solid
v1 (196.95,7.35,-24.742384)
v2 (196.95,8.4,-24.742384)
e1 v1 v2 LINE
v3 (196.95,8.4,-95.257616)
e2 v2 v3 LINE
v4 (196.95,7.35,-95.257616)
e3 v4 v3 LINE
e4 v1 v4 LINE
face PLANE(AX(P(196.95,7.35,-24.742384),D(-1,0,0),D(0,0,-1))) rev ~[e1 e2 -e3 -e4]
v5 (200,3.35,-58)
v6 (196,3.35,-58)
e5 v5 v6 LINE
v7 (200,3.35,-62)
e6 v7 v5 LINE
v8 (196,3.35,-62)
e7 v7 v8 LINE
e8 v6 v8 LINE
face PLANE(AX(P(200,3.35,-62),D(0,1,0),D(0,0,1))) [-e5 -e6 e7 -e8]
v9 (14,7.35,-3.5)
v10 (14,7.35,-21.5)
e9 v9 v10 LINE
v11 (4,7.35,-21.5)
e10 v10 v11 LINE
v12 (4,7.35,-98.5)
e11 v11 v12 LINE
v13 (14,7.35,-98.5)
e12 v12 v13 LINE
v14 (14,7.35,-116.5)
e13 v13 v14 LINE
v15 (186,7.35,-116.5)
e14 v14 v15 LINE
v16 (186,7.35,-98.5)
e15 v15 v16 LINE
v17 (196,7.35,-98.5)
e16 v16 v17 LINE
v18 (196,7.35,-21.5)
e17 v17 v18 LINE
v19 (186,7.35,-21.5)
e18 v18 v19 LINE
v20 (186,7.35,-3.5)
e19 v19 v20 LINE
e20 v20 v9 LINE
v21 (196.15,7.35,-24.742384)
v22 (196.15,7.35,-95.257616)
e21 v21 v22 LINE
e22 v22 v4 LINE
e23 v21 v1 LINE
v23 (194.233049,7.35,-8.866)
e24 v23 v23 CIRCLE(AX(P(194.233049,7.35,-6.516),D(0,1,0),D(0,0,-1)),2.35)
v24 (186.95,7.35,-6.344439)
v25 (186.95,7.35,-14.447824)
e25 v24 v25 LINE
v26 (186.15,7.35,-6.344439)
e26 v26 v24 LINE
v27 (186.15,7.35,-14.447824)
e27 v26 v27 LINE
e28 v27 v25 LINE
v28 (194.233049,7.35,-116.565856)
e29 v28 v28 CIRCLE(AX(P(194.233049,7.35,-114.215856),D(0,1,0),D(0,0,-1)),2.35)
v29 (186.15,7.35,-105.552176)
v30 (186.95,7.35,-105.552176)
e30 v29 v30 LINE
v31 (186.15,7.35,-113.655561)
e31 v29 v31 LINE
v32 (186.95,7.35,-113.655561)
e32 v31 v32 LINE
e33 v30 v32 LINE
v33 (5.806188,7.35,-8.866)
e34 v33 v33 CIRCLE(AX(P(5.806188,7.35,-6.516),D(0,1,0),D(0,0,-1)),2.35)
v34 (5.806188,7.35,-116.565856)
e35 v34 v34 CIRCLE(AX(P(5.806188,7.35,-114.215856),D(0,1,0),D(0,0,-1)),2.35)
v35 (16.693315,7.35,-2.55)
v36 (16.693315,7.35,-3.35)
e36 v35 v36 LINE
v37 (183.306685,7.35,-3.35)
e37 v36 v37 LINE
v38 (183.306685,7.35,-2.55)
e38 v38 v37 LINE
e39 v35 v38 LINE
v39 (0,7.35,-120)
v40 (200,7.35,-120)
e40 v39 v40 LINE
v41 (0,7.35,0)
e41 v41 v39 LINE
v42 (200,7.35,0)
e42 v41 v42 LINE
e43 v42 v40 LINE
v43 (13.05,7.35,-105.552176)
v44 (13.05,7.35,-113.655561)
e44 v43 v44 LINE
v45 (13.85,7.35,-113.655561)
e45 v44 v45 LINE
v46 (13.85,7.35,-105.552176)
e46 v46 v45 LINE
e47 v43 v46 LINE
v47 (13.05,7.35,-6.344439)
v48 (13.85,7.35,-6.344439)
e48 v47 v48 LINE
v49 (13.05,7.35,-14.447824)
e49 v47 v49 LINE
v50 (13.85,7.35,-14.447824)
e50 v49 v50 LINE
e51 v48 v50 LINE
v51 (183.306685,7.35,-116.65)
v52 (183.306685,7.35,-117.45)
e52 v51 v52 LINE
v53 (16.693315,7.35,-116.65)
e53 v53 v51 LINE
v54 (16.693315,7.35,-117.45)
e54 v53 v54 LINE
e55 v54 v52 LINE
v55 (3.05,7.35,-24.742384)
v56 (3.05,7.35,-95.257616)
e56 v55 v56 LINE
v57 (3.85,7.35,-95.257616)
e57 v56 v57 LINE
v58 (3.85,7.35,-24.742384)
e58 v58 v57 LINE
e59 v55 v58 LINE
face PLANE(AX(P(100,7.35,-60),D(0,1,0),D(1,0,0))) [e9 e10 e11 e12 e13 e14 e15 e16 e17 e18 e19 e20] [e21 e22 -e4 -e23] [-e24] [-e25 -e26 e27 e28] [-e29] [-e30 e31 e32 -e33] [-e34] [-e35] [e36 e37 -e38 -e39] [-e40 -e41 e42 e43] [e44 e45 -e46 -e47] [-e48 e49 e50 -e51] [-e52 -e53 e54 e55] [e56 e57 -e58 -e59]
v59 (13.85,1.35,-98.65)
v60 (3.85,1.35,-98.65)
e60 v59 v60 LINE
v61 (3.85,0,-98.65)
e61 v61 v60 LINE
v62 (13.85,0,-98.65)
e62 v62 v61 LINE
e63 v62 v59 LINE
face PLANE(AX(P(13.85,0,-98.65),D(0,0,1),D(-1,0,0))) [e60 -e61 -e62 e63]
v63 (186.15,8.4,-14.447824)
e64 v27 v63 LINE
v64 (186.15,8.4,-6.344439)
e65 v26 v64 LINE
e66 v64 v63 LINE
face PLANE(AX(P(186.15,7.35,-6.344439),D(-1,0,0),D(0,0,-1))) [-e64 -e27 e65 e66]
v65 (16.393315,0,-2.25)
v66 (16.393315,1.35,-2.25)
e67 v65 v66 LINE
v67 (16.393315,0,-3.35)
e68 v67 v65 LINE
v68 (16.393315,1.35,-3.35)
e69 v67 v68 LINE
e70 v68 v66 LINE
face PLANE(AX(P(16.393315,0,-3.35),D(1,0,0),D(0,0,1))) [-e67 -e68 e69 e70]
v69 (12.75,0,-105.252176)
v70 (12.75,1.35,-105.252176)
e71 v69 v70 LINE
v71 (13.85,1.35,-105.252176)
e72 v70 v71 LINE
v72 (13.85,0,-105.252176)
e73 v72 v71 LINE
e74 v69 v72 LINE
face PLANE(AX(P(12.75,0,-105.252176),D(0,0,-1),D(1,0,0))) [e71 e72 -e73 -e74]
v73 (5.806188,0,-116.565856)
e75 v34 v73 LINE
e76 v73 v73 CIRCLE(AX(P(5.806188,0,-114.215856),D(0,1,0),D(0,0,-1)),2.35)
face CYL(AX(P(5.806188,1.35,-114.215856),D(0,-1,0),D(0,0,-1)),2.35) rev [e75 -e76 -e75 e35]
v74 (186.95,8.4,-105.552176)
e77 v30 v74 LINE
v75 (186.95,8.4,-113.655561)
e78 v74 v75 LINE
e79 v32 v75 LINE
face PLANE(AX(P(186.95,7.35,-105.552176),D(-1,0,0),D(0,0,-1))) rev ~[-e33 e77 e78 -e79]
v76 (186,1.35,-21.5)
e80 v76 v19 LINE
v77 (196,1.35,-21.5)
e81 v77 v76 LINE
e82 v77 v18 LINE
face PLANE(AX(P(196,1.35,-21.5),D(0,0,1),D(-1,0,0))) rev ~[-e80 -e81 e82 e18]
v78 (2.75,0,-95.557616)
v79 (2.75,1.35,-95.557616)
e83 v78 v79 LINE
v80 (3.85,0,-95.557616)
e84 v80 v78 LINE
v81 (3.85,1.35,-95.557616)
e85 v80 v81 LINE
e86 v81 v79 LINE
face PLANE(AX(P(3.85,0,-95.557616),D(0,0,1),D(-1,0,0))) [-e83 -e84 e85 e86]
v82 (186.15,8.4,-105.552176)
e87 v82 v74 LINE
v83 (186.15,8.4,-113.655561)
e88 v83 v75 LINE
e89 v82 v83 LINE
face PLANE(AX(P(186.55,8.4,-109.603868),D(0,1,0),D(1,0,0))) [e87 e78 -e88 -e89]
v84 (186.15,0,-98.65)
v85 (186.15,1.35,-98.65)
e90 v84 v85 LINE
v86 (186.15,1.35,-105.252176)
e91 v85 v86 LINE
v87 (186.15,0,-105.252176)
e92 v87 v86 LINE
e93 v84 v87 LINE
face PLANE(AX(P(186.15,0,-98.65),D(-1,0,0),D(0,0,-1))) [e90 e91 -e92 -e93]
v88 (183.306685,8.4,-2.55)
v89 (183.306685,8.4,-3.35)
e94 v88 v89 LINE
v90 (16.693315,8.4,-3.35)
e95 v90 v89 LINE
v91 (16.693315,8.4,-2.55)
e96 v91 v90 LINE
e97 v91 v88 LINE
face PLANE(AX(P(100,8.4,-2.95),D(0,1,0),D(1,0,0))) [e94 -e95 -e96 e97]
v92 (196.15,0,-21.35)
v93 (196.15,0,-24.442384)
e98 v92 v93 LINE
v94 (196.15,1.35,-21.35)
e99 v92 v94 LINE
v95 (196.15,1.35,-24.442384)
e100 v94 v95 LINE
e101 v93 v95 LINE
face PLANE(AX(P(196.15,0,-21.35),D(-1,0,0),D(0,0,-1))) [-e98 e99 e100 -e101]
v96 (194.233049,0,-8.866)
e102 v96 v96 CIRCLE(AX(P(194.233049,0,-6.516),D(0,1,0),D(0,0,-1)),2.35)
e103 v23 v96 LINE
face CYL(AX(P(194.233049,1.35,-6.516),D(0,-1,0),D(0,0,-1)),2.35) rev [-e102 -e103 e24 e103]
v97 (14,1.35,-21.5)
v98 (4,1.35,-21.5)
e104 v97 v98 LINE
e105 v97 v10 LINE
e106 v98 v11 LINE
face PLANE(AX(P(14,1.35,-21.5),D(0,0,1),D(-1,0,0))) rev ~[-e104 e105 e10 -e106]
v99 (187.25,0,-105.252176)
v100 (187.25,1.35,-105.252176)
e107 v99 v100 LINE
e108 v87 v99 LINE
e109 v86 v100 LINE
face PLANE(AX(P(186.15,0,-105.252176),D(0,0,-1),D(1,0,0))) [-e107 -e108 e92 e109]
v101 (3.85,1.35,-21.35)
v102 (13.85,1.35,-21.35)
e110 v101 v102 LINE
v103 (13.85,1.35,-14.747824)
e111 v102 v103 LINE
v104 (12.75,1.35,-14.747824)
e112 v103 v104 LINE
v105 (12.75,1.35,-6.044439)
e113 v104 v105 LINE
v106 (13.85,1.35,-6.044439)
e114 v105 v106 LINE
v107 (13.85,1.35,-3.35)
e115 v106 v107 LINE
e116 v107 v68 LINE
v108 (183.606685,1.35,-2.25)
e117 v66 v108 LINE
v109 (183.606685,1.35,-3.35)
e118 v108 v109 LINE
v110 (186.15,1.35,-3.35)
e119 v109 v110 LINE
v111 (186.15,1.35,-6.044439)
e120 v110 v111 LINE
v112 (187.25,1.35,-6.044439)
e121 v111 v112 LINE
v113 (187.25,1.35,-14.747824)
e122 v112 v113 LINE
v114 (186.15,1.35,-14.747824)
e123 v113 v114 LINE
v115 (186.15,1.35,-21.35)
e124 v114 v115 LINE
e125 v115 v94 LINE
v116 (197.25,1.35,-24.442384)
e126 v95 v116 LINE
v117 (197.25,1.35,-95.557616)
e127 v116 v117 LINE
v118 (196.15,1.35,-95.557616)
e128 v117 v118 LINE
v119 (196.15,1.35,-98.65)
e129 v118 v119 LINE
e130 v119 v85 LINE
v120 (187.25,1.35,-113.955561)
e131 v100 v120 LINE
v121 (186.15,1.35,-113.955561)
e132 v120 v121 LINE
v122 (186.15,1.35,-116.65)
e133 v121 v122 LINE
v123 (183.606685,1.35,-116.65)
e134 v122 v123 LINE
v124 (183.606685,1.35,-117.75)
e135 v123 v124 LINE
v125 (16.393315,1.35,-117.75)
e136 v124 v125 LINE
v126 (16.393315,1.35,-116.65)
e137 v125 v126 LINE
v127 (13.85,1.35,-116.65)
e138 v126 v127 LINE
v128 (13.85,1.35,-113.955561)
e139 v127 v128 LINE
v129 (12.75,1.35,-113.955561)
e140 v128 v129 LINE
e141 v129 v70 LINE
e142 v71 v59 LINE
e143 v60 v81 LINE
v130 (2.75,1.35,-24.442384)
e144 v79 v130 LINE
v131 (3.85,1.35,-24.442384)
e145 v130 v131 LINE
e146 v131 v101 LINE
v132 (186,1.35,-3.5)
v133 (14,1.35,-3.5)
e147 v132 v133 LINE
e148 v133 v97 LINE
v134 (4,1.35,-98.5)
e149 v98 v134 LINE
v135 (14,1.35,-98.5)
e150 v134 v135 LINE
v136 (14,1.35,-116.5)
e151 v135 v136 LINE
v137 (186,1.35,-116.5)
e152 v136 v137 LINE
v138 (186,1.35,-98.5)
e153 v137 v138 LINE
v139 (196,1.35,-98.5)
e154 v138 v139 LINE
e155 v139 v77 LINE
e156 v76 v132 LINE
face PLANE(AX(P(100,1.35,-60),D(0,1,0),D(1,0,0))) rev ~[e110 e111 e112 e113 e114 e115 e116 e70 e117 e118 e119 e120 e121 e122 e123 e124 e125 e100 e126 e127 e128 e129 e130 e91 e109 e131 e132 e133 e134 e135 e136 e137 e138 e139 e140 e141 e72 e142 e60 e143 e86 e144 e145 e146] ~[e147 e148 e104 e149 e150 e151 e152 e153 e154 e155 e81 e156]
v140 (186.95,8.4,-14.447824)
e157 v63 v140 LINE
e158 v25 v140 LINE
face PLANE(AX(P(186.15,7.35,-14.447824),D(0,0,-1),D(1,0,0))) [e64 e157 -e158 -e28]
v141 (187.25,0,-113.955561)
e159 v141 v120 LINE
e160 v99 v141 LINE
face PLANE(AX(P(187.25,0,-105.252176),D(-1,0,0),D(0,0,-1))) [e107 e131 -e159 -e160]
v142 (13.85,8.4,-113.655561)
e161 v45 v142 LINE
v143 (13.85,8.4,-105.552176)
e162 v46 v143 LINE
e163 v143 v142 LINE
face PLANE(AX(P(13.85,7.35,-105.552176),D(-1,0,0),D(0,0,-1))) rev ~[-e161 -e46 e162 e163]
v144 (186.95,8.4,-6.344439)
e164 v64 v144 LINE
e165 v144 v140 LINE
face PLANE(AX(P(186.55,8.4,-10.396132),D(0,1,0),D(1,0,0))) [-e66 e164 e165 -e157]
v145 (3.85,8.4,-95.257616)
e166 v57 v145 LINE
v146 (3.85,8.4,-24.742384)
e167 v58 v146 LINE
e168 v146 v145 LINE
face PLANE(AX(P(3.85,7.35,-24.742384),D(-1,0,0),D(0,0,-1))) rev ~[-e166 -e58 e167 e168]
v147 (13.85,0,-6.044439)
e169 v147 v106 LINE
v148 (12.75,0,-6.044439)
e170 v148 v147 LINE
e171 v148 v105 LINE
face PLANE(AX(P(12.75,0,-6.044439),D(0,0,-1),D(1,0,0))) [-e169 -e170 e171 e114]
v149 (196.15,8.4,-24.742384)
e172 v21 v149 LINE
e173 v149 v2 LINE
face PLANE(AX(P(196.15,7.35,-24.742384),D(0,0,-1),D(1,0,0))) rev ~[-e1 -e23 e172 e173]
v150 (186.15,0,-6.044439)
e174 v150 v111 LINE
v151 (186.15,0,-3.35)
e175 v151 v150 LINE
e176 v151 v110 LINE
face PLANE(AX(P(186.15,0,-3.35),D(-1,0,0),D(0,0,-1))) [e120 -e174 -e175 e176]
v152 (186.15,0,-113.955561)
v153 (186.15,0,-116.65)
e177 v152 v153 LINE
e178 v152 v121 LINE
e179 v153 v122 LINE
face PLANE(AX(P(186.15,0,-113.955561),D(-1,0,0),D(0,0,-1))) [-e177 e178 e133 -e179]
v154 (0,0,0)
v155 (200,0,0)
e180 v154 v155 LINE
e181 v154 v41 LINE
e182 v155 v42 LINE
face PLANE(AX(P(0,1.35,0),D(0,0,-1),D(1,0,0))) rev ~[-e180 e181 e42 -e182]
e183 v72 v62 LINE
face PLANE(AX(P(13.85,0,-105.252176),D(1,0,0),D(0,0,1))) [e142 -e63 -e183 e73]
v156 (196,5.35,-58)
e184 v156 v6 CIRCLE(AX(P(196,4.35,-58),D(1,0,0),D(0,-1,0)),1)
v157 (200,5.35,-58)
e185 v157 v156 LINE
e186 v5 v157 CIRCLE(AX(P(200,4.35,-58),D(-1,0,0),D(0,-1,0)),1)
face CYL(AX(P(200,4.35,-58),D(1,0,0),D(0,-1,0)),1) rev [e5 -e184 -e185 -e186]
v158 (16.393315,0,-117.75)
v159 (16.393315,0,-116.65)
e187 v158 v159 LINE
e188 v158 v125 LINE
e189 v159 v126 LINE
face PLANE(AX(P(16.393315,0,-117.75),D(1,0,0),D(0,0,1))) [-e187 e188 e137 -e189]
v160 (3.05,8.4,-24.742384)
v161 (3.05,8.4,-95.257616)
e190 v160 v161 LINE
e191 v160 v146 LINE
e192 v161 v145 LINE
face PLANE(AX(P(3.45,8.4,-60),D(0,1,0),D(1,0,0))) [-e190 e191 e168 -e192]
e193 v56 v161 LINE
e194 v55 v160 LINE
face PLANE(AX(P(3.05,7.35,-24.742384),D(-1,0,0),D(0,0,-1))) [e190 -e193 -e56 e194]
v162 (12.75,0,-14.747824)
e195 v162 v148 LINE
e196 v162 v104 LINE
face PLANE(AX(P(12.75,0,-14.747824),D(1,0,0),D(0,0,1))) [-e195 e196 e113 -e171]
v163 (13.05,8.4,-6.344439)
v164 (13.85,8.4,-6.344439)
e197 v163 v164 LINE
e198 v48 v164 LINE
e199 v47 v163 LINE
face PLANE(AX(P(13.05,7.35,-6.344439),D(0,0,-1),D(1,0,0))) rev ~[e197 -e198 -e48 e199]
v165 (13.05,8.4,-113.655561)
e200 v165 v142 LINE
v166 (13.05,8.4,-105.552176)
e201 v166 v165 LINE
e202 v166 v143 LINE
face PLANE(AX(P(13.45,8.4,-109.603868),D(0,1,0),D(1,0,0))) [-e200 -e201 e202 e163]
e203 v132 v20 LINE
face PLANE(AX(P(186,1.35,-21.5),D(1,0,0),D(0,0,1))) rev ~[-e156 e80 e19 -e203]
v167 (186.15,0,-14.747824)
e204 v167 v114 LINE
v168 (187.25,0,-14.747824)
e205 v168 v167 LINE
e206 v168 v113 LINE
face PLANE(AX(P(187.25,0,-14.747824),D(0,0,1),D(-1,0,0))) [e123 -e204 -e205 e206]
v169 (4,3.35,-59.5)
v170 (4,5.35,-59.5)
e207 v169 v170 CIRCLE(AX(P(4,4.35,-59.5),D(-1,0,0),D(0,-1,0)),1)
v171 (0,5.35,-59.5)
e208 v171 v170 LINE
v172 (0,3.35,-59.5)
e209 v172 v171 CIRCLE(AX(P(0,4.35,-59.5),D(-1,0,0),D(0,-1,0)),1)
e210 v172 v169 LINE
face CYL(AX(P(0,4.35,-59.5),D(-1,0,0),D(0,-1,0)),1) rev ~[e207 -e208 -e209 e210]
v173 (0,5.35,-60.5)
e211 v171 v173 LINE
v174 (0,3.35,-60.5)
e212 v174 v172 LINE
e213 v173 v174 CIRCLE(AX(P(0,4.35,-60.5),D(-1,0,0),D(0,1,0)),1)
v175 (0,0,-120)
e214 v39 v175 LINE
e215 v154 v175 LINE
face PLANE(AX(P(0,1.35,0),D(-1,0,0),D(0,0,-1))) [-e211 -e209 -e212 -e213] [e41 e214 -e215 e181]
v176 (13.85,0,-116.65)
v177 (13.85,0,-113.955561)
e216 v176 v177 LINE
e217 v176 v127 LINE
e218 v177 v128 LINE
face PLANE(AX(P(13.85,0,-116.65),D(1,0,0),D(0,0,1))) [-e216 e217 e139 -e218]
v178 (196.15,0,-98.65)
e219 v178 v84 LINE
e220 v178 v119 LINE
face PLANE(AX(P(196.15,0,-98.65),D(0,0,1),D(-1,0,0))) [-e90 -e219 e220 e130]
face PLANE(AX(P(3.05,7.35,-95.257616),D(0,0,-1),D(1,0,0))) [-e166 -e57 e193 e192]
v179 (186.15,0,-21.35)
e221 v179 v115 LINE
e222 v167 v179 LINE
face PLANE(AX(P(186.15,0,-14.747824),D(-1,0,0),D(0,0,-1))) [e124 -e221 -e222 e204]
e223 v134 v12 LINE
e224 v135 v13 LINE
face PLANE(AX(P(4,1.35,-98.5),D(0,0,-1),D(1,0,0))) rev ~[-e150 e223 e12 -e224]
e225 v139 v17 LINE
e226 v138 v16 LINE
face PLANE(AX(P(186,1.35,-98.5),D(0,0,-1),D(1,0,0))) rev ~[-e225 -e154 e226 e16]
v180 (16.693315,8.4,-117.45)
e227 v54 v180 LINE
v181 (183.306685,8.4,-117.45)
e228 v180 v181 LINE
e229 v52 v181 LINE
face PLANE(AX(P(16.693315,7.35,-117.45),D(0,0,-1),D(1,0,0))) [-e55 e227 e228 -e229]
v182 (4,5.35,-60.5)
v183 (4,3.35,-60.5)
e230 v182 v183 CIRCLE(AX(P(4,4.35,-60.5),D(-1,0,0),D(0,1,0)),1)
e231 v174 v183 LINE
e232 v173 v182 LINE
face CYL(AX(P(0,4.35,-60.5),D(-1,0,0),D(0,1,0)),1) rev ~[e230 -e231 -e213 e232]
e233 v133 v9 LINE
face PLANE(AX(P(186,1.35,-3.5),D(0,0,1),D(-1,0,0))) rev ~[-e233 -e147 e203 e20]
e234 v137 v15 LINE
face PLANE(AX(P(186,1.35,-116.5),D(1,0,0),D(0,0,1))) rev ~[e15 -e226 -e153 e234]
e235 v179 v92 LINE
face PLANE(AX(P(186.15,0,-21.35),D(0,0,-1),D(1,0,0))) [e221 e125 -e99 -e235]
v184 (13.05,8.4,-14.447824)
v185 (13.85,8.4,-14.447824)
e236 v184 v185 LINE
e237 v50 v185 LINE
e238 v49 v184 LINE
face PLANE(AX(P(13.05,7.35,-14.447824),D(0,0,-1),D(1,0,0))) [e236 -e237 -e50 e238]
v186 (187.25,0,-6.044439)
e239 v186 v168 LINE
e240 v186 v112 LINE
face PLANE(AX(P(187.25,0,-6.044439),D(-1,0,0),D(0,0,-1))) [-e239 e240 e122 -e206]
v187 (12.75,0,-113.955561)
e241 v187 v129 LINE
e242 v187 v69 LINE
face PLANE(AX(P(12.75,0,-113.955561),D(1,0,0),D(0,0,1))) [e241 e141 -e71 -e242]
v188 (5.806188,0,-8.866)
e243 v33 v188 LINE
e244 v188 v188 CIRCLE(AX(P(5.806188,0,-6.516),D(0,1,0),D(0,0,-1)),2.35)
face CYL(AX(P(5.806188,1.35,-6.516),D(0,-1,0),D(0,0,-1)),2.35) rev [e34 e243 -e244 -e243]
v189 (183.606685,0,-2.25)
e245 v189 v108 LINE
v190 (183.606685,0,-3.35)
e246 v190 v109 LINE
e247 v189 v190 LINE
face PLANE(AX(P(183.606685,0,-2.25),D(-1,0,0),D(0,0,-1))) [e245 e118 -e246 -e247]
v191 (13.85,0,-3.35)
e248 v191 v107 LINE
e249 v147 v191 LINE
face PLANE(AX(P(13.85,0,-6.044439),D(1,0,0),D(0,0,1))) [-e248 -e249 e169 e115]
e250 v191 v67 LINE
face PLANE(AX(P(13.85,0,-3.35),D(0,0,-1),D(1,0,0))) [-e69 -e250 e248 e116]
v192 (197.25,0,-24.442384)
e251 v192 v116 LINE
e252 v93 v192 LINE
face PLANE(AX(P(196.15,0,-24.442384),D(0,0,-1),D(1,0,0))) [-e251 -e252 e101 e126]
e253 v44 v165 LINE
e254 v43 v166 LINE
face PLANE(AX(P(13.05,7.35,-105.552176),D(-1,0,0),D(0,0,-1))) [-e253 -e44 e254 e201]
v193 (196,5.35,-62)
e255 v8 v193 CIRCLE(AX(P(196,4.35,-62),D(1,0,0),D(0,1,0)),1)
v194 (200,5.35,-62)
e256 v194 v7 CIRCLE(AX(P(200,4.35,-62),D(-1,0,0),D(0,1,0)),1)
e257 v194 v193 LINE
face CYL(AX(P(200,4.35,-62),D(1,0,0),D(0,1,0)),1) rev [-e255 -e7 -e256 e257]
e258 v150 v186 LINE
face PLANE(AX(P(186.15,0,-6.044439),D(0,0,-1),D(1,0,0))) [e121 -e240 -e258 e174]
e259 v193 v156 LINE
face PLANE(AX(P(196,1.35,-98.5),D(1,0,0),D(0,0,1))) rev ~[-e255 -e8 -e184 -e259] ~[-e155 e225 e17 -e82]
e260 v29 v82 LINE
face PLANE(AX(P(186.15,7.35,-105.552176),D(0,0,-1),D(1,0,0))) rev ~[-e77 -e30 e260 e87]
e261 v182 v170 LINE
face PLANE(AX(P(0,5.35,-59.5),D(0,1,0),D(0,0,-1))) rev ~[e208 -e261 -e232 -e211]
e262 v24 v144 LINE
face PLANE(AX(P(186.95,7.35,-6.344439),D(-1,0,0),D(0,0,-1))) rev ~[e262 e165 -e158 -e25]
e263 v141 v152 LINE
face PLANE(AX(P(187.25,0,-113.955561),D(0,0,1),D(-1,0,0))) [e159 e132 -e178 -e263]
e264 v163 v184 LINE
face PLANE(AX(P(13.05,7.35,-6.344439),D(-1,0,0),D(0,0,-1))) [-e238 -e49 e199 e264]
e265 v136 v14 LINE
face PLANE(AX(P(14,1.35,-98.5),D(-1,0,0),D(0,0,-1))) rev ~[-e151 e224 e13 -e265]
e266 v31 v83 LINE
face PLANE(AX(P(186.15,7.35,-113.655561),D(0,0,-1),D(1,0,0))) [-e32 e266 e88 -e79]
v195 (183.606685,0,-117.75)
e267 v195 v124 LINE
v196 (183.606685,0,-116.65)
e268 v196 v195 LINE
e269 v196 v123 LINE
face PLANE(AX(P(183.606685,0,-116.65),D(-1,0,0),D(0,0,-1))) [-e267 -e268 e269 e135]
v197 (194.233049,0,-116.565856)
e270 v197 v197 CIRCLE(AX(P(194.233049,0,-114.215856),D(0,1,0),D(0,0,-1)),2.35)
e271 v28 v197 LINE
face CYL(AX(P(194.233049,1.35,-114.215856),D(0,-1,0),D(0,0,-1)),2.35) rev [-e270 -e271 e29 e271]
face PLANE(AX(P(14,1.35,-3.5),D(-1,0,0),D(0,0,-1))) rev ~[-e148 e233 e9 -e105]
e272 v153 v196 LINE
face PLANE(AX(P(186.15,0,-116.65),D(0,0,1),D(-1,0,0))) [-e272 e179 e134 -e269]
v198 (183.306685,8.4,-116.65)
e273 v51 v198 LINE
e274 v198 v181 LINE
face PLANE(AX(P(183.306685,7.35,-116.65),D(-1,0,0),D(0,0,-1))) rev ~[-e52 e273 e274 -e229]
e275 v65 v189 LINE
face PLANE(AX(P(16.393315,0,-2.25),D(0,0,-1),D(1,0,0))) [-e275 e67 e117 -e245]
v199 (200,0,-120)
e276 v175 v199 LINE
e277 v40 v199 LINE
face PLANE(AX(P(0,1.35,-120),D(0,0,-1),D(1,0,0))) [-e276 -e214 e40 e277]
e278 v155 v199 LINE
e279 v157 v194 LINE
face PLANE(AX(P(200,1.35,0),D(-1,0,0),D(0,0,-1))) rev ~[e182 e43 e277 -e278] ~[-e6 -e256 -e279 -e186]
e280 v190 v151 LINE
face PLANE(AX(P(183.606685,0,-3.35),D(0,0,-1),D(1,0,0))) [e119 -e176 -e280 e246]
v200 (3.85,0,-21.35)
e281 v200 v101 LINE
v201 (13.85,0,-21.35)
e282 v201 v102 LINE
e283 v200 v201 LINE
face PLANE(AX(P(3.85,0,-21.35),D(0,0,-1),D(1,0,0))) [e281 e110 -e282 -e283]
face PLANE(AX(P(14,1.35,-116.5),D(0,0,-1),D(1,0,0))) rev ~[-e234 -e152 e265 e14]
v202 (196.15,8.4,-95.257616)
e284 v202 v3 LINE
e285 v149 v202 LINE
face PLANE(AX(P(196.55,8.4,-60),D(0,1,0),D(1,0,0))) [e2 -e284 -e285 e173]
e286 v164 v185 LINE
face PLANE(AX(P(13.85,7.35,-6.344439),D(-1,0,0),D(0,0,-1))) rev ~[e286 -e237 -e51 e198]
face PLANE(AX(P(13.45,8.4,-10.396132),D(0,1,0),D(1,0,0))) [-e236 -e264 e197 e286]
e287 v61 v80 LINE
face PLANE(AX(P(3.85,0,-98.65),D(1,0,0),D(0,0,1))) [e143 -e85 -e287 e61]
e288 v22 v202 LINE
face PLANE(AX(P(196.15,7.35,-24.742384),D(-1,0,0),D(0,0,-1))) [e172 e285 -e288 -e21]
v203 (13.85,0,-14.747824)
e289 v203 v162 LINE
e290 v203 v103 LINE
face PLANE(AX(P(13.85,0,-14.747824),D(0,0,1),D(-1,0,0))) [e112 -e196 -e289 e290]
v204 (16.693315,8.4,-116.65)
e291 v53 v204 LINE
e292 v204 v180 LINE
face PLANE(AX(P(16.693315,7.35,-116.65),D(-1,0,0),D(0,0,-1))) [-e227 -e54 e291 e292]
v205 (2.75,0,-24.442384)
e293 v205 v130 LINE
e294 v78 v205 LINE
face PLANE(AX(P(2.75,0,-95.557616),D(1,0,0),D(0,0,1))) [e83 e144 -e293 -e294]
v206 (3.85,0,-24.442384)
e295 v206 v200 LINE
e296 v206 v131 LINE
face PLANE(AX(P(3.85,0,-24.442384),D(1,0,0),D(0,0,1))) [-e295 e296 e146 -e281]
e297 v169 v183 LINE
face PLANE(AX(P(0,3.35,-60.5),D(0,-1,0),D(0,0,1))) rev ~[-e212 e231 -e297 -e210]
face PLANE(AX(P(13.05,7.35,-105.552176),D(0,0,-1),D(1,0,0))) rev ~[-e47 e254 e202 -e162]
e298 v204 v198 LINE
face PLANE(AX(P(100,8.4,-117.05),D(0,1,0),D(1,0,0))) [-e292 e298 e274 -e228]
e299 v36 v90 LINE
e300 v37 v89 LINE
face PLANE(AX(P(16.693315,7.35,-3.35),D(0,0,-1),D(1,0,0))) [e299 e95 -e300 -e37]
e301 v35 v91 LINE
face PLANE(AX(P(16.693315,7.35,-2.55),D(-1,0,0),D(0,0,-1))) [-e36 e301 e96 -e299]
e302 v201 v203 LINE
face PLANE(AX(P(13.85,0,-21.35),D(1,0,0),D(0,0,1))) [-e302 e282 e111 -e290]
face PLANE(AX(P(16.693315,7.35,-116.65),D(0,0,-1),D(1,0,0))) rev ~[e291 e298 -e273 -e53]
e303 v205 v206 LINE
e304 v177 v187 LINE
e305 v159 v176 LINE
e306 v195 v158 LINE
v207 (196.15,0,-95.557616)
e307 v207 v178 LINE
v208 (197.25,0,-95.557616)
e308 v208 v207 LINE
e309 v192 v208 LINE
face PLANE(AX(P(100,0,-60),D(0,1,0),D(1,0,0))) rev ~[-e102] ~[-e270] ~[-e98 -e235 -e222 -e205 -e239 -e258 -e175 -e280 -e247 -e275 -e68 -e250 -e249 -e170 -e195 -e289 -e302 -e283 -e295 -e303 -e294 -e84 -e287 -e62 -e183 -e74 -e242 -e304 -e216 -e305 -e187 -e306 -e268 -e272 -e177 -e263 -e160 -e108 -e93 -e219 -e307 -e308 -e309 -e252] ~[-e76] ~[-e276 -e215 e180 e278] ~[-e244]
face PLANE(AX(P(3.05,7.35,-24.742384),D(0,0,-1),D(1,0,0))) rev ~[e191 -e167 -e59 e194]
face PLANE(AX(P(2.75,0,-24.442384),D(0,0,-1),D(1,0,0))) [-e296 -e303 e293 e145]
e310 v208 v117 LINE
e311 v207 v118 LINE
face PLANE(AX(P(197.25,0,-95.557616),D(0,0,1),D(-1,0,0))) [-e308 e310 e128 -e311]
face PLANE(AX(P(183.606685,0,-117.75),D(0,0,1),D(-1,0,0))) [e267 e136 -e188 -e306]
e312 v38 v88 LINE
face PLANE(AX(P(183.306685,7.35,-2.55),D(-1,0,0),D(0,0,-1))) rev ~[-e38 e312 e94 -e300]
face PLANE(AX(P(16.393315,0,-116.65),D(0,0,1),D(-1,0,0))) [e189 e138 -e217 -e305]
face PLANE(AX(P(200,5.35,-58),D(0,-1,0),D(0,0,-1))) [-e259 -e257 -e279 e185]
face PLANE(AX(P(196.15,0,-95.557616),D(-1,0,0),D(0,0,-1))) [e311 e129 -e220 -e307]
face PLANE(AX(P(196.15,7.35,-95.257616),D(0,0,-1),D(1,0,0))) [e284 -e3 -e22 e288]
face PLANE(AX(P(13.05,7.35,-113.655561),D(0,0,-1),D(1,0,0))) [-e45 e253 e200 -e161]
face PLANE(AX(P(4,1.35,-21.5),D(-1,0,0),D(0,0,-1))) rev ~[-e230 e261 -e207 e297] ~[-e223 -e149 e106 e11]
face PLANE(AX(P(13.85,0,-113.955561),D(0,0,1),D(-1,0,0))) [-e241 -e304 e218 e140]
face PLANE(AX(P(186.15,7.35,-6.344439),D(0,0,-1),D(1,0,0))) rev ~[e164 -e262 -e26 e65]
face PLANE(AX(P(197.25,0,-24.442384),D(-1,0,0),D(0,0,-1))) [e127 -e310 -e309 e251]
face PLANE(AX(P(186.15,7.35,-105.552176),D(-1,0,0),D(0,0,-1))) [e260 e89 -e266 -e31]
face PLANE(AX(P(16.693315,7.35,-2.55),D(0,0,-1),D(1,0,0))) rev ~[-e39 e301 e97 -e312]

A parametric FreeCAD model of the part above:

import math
import FreeCAD as App
import Part
import Sketcher


def add_polygon(sketch, points):
    """Adds a closed chain of lines whose ends are joined by coincident constraints."""
    first, n = sketch.GeometryCount, len(points)
    for a, b in zip(points, points[1:] + points[:1]):
        sketch.addGeometry(Part.LineSegment(App.Vector(*a, 0), App.Vector(*b, 0)), False)
    for i in range(n):
        sketch.addConstraint(Sketcher.Constraint("Coincident", first + i, 2, first + (i + 1) % n, 1))

doc = App.newDocument("Part")
params = doc.addObject("Spreadsheet::Sheet", "Params")
for row, (alias, value) in enumerate([
    ("sketch1_diameter", "4.7 mm"),
    ("sketch1_width", "200 mm"),
    ("sketch1_width2", "10 mm"),
    ("sketch1_height", "120 mm"),
    ("sketch1_width3", "1.1 mm"),
    ("pad1_length", "1.35 mm"),
    ("sketch2_diameter", "4.7 mm"),
    ("sketch2_width", "200 mm"),
    ("sketch2_width2", "172 mm"),
    ("sketch2_width3", "10 mm"),
    ("sketch2_height", "120 mm"),
    ("pad2_length", "6 mm"),
    ("sketch3_width", "0.8 mm"),
    ("pad3_length", "1.05 mm"),
    ("sketch4_radius", "1 mm"),
    ("sketch4_height", "1 mm"),
    ("sketch5_radius", "1 mm"),
    ("sketch5_height", "4 mm"),
], start=1):
    params.set(f"A{row}", alias)
    params.set(f"B{row}", "=" + value)
    params.setAlias(f"B{row}", alias)

body = doc.addObject("PartDesign::Body", "Body")

# Sketch on XZ plane
sketch1 = body.newObject("Sketcher::SketchObject", "Sketch")
sketch1.AttachmentSupport = (doc.getObject("XZ_Plane"), [""])
sketch1.MapMode = "FlatFace"
add_polygon(sketch1, [(0, -120), (0, 0), (200, 0), (200, -120)])  # lines 0-3
sketch1.addGeometry(Part.Circle(App.Vector(5.806188, -6.516, 0), App.Vector(0, 0, 1), 2.35), False)  # 4
sketch1.addGeometry(Part.Circle(App.Vector(194.233049, -6.516, 0), App.Vector(0, 0, 1), 2.35), False)  # 5
add_polygon(sketch1, [(2.75, -24.442384), (2.75, -95.557616), (3.85, -95.557616), (3.85, -98.65), (13.85, -98.65), (13.85, -105.252176), (12.75, -105.252176), (12.75, -113.955561), (13.85, -113.955561), (13.85, -116.65), (16.393315, -116.65), (16.393315, -117.75), (183.606685, -117.75), (183.606685, -116.65), (186.15, -116.65), (186.15, -113.955561), (187.25, -113.955561), (187.25, -105.252176), (186.15, -105.252176), (186.15, -98.65), (196.15, -98.65), (196.15, -95.557616), (197.25, -95.557616), (197.25, -24.442384), (196.15, -24.442384), (196.15, -21.35), (186.15, -21.35), (186.15, -14.747824), (187.25, -14.747824), (187.25, -6.044439), (186.15, -6.044439), (186.15, -3.35), (183.606685, -3.35), (183.606685, -2.25), (16.393315, -2.25), (16.393315, -3.35), (13.85, -3.35), (13.85, -6.044439), (12.75, -6.044439), (12.75, -14.747824), (13.85, -14.747824), (13.85, -21.35), (3.85, -21.35), (3.85, -24.442384)])  # lines 6-49
sketch1.addGeometry(Part.Circle(App.Vector(5.806188, -114.215856, 0), App.Vector(0, 0, 1), 2.35), False)  # 50
sketch1.addGeometry(Part.Circle(App.Vector(194.233049, -114.215856, 0), App.Vector(0, 0, 1), 2.35), False)  # 51
sketch1.addConstraint(Sketcher.Constraint("Vertical", 0))
sketch1.addConstraint(Sketcher.Constraint("Horizontal", 1))
sketch1.addConstraint(Sketcher.Constraint("Vertical", 2))
sketch1.addConstraint(Sketcher.Constraint("Horizontal", 3))
sketch1.addConstraint(Sketcher.Constraint("Vertical", 6))
sketch1.addConstraint(Sketcher.Constraint("Horizontal", 7))
sketch1.addConstraint(Sketcher.Constraint("Vertical", 8))
sketch1.addConstraint(Sketcher.Constraint("Horizontal", 9))
sketch1.addConstraint(Sketcher.Constraint("Vertical", 10))
sketch1.addConstraint(Sketcher.Constraint("Horizontal", 11))
sketch1.addConstraint(Sketcher.Constraint("Vertical", 12))
sketch1.addConstraint(Sketcher.Constraint("Horizontal", 13))
sketch1.addConstraint(Sketcher.Constraint("Vertical", 14))
sketch1.addConstraint(Sketcher.Constraint("Horizontal", 15))
sketch1.addConstraint(Sketcher.Constraint("Vertical", 16))
sketch1.addConstraint(Sketcher.Constraint("Horizontal", 17))
sketch1.addConstraint(Sketcher.Constraint("Vertical", 18))
sketch1.addConstraint(Sketcher.Constraint("Horizontal", 19))
sketch1.addConstraint(Sketcher.Constraint("Vertical", 20))
sketch1.addConstraint(Sketcher.Constraint("Horizontal", 21))
sketch1.addConstraint(Sketcher.Constraint("Vertical", 22))
sketch1.addConstraint(Sketcher.Constraint("Horizontal", 23))
sketch1.addConstraint(Sketcher.Constraint("Vertical", 24))
sketch1.addConstraint(Sketcher.Constraint("Horizontal", 25))
sketch1.addConstraint(Sketcher.Constraint("Vertical", 26))
sketch1.addConstraint(Sketcher.Constraint("Horizontal", 27))
sketch1.addConstraint(Sketcher.Constraint("Vertical", 28))
sketch1.addConstraint(Sketcher.Constraint("Horizontal", 29))
sketch1.addConstraint(Sketcher.Constraint("Vertical", 30))
sketch1.addConstraint(Sketcher.Constraint("Horizontal", 31))
sketch1.addConstraint(Sketcher.Constraint("Vertical", 32))
sketch1.addConstraint(Sketcher.Constraint("Horizontal", 33))
sketch1.addConstraint(Sketcher.Constraint("Vertical", 34))
sketch1.addConstraint(Sketcher.Constraint("Horizontal", 35))
sketch1.addConstraint(Sketcher.Constraint("Vertical", 36))
sketch1.addConstraint(Sketcher.Constraint("Horizontal", 37))
sketch1.addConstraint(Sketcher.Constraint("Vertical", 38))
sketch1.addConstraint(Sketcher.Constraint("Horizontal", 39))
sketch1.addConstraint(Sketcher.Constraint("Vertical", 40))
sketch1.addConstraint(Sketcher.Constraint("Horizontal", 41))
sketch1.addConstraint(Sketcher.Constraint("Vertical", 42))
sketch1.addConstraint(Sketcher.Constraint("Horizontal", 43))
sketch1.addConstraint(Sketcher.Constraint("Vertical", 44))
sketch1.addConstraint(Sketcher.Constraint("Horizontal", 45))
sketch1.addConstraint(Sketcher.Constraint("Vertical", 46))
sketch1.addConstraint(Sketcher.Constraint("Horizontal", 47))
sketch1.addConstraint(Sketcher.Constraint("Vertical", 48))
sketch1.addConstraint(Sketcher.Constraint("Horizontal", 49))
sketch1.addConstraint(Sketcher.Constraint("Coincident", 0, 2, -1, 1))
sketch1.addConstraint(Sketcher.Constraint("Equal", 4, 5))
sketch1.addConstraint(Sketcher.Constraint("Equal", 5, 50))
sketch1.addConstraint(Sketcher.Constraint("Equal", 50, 51))
sketch1.addConstraint(Sketcher.Constraint("Horizontal", 4, 3, 5, 3))
sketch1.addConstraint(Sketcher.Constraint("Horizontal", 50, 3, 51, 3))
sketch1.addConstraint(Sketcher.Constraint("Horizontal", 15, 2, 18, 2))
sketch1.addConstraint(Sketcher.Constraint("Horizontal", 13, 2, 20, 2))
sketch1.addConstraint(Sketcher.Constraint("Horizontal", 11, 2, 22, 2))
sketch1.addConstraint(Sketcher.Constraint("Horizontal", 9, 2, 24, 2))
sketch1.addConstraint(Sketcher.Constraint("Horizontal", 7, 2, 26, 2))
sketch1.addConstraint(Sketcher.Constraint("Horizontal", 37, 2, 40, 2))
sketch1.addConstraint(Sketcher.Constraint("Horizontal", 35, 2, 42, 2))
sketch1.addConstraint(Sketcher.Constraint("Horizontal", 33, 2, 44, 2))
sketch1.addConstraint(Sketcher.Constraint("Horizontal", 31, 2, 46, 2))
sketch1.addConstraint(Sketcher.Constraint("Horizontal", 29, 2, 48, 2))
sketch1.addConstraint(Sketcher.Constraint("Vertical", 4, 3, 50, 3))
sketch1.addConstraint(Sketcher.Constraint("Vertical", 5, 3, 51, 3))
sketch1.addConstraint(Sketcher.Constraint("Vertical", 10, 2, 13, 2))
sketch1.addConstraint(Sketcher.Constraint("Vertical", 20, 2, 23, 2))
sketch1.addConstraint(Sketcher.Constraint("Vertical", 26, 2, 29, 2))
sketch1.addConstraint(Sketcher.Constraint("Vertical", 24, 2, 31, 2))
sketch1.addConstraint(Sketcher.Constraint("Vertical", 22, 2, 33, 2))
sketch1.addConstraint(Sketcher.Constraint("Vertical", 32, 2, 35, 2))
sketch1.addConstraint(Sketcher.Constraint("Vertical", 18, 2, 37, 2))
sketch1.addConstraint(Sketcher.Constraint("Vertical", 16, 2, 39, 2))
sketch1.addConstraint(Sketcher.Constraint("Vertical", 14, 2, 41, 2))
sketch1.addConstraint(Sketcher.Constraint("Vertical", 12, 2, 43, 2))
sketch1.addConstraint(Sketcher.Constraint("Vertical", 42, 2, 45, 2))
sketch1.addConstraint(Sketcher.Constraint("Vertical", 8, 2, 47, 2))
sketch1.addConstraint(Sketcher.Constraint("Equal", 7, 11))
sketch1.addConstraint(Sketcher.Constraint("Equal", 15, 19))
sketch1.addConstraint(Sketcher.Constraint("Equal", 13, 21))
sketch1.addConstraint(Sketcher.Constraint("Equal", 9, 25))
sketch1.addConstraint(Sketcher.Constraint("Equal", 23, 27))
sketch1.addConstraint(Sketcher.Constraint("Equal", 49, 16))
sketch1.addConstraint(Sketcher.Constraint("Equal", 26, 30))
sketch1.addConstraint(Sketcher.Constraint("Equal", 24, 32))
sketch1.addConstraint(Sketcher.Constraint("Equal", 22, 34))
sketch1.addConstraint(Sketcher.Constraint("Equal", 20, 36))
sketch1.addConstraint(Sketcher.Constraint("Equal", 18, 38))
sketch1.addConstraint(Sketcher.Constraint("Diameter", 4, 4.7))
sketch1.addConstraint(Sketcher.Constraint("DistanceX", 1, 1, 1, 2, 200.0))
sketch1.addConstraint(Sketcher.Constraint("DistanceX", 9, 1, 9, 2, 10.0))
sketch1.addConstraint(Sketcher.Constraint("DistanceY", 0, 1, 0, 2, 120.0))
sketch1.addConstraint(Sketcher.Constraint("DistanceX", 7, 1, 7, 2, 1.1))
sketch1.addConstraint(Sketcher.Constraint("DistanceY", 9, 2, 39, 2, 96.4))
sketch1.addConstraint(Sketcher.Constraint("DistanceX", -1, 1, 6, 2, 2.75))
sketch1.addConstraint(Sketcher.Constraint("DistanceY", 8, 2, -1, 1, 98.65))
sketch1.addConstraint(Sketcher.Constraint("DistanceY", 14, 2, -1, 1, 116.65))
sketch1.addConstraint(Sketcher.Constraint("DistanceX", -1, 1, 19, 2, 186.15))
sketch1.addConstraint(Sketcher.Constraint("DistanceY", 4, 3, -1, 1, 6.516))
sketch1.addConstraint(Sketcher.Constraint("DistanceX", 17, 1, 17, 2, 167.213371))
sketch1.addConstraint(Sketcher.Constraint("DistanceY", 14, 2, 14, 1, 2.694439))
sketch1.addConstraint(Sketcher.Constraint("DistanceY", 6, 2, 6, 1, 71.115233))
sketch1.addConstraint(Sketcher.Constraint("DistanceY", 10, 2, 10, 1, 6.602176))
sketch1.addConstraint(Sketcher.Constraint("DistanceX", -1, 1, 4, 3, 5.806188))
sketch1.addConstraint(Sketcher.Constraint("DistanceX", -1, 1, 5, 3, 194.233049))
sketch1.addConstraint(Sketcher.Constraint("DistanceY", 50, 3, 6, 2, 18.65824))
sketch1.setExpression("Constraints[137]", "Params.sketch1_diameter")
sketch1.setExpression("Constraints[138]", "Params.sketch1_width")
sketch1.setExpression("Constraints[139]", "Params.sketch1_width2")
sketch1.setExpression("Constraints[140]", "Params.sketch1_height")
sketch1.setExpression("Constraints[141]", "Params.sketch1_width3")
pad1 = body.newObject("PartDesign::Pad", "Pad")
pad1.Profile = sketch1
pad1.setExpression("Length", "Params.pad1_length")
pad1.Reversed = True

# Sketch on XZ plane
sketch2 = body.newObject("Sketcher::SketchObject", "Sketch001")
sketch2.AttachmentSupport = (doc.getObject("XZ_Plane"), [""])
sketch2.MapMode = "FlatFace"
sketch2.AttachmentOffset = App.Placement(App.Vector(0, 0, -1.35), App.Rotation())
add_polygon(sketch2, [(0, -120), (0, 0), (200, 0), (200, -120)])  # lines 0-3
sketch2.addGeometry(Part.Circle(App.Vector(5.806188, -6.516, 0), App.Vector(0, 0, 1), 2.35), False)  # 4
add_polygon(sketch2, [(14, -116.5), (186, -116.5), (186, -98.5), (196, -98.5), (196, -21.5), (186, -21.5), (186, -3.5), (14, -3.5), (14, -21.5), (4, -21.5), (4, -98.5), (14, -98.5)])  # lines 5-16
sketch2.addGeometry(Part.Circle(App.Vector(194.233049, -6.516, 0), App.Vector(0, 0, 1), 2.35), False)  # 17
sketch2.addGeometry(Part.Circle(App.Vector(5.806188, -114.215856, 0), App.Vector(0, 0, 1), 2.35), False)  # 18
sketch2.addGeometry(Part.Circle(App.Vector(194.233049, -114.215856, 0), App.Vector(0, 0, 1), 2.35), False)  # 19
sketch2.addConstraint(Sketcher.Constraint("Vertical", 0))
sketch2.addConstraint(Sketcher.Constraint("Horizontal", 1))
sketch2.addConstraint(Sketcher.Constraint("Vertical", 2))
sketch2.addConstraint(Sketcher.Constraint("Horizontal", 3))
sketch2.addConstraint(Sketcher.Constraint("Horizontal", 5))
sketch2.addConstraint(Sketcher.Constraint("Vertical", 6))
sketch2.addConstraint(Sketcher.Constraint("Horizontal", 7))
sketch2.addConstraint(Sketcher.Constraint("Vertical", 8))
sketch2.addConstraint(Sketcher.Constraint("Horizontal", 9))
sketch2.addConstraint(Sketcher.Constraint("Vertical", 10))
sketch2.addConstraint(Sketcher.Constraint("Horizontal", 11))
sketch2.addConstraint(Sketcher.Constraint("Vertical", 12))
sketch2.addConstraint(Sketcher.Constraint("Horizontal", 13))
sketch2.addConstraint(Sketcher.Constraint("Vertical", 14))
sketch2.addConstraint(Sketcher.Constraint("Horizontal", 15))
sketch2.addConstraint(Sketcher.Constraint("Vertical", 16))
sketch2.addConstraint(Sketcher.Constraint("Coincident", 0, 2, -1, 1))
sketch2.addConstraint(Sketcher.Constraint("Equal", 4, 17))
sketch2.addConstraint(Sketcher.Constraint("Equal", 17, 18))
sketch2.addConstraint(Sketcher.Constraint("Equal", 18, 19))
sketch2.addConstraint(Sketcher.Constraint("Horizontal", 4, 3, 17, 3))
sketch2.addConstraint(Sketcher.Constraint("Horizontal", 18, 3, 19, 3))
sketch2.addConstraint(Sketcher.Constraint("Horizontal", 9, 2, 12, 2))
sketch2.addConstraint(Sketcher.Constraint("Horizontal", 7, 2, 14, 2))
sketch2.addConstraint(Sketcher.Constraint("Vertical", 4, 3, 18, 3))
sketch2.addConstraint(Sketcher.Constraint("Vertical", 17, 3, 19, 3))
sketch2.addConstraint(Sketcher.Constraint("Vertical", 6, 2, 9, 2))
sketch2.addConstraint(Sketcher.Constraint("Vertical", 12, 2, 15, 2))
sketch2.addConstraint(Sketcher.Constraint("Equal", 9, 13))
sketch2.addConstraint(Sketcher.Constraint("Equal", 6, 10))
sketch2.addConstraint(Sketcher.Constraint("Diameter", 4, 4.7))
sketch2.addConstraint(Sketcher.Constraint("DistanceX", 1, 1, 1, 2, 200.0))
sketch2.addConstraint(Sketcher.Constraint("DistanceX", 5, 1, 5, 2, 172.0))
sketch2.addConstraint(Sketcher.Constraint("DistanceX", 7, 1, 7, 2, 10.0))
sketch2.addConstraint(Sketcher.Constraint("DistanceY", 0, 1, 0, 2, 120.0))
sketch2.addConstraint(Sketcher.Constraint("DistanceY", 6, 1, 6, 2, 18.0))
sketch2.addConstraint(Sketcher.Constraint("DistanceY", 8, 1, 8, 2, 77.0))
sketch2.addConstraint(Sketcher.Constraint("DistanceX", -1, 1, 5, 2, 186.0))
sketch2.addConstraint(Sketcher.Constraint("DistanceY", 5, 2, -1, 1, 116.5))
sketch2.addConstraint(Sketcher.Constraint("DistanceY", 4, 3, -1, 1, 6.516))
sketch2.addConstraint(Sketcher.Constraint("DistanceX", -1, 1, 4, 3, 5.806188))
sketch2.addConstraint(Sketcher.Constraint("DistanceX", -1, 1, 17, 3, 194.233049))
sketch2.addConstraint(Sketcher.Constraint("DistanceY", 18, 3, -1, 1, 114.215856))
sketch2.setExpression("Constraints[46]", "Params.sketch2_diameter")
sketch2.setExpression("Constraints[47]", "Params.sketch2_width")
sketch2.setExpression("Constraints[48]", "Params.sketch2_width2")
sketch2.setExpression("Constraints[49]", "Params.sketch2_width3")
sketch2.setExpression("Constraints[50]", "Params.sketch2_height")
pad2 = body.newObject("PartDesign::Pad", "Pad001")
pad2.Profile = sketch2
pad2.setExpression("Length", "Params.pad2_length")
pad2.Reversed = True

# Sketch on XZ plane
sketch3 = body.newObject("Sketcher::SketchObject", "Sketch002")
sketch3.AttachmentSupport = (doc.getObject("XZ_Plane"), [""])
sketch3.MapMode = "FlatFace"
sketch3.AttachmentOffset = App.Placement(App.Vector(0, 0, -7.35), App.Rotation())
add_polygon(sketch3, [(13.05, -113.655561), (13.05, -105.552176), (13.85, -105.552176), (13.85, -113.655561)])  # lines 0-3
add_polygon(sketch3, [(186.15, -113.655561), (186.15, -105.552176), (186.95, -105.552176), (186.95, -113.655561)])  # lines 4-7
add_polygon(sketch3, [(16.693315, -117.45), (16.693315, -116.65), (183.306685, -116.65), (183.306685, -117.45)])  # lines 8-11
add_polygon(sketch3, [(196.15, -95.257616), (196.15, -24.742384), (196.95, -24.742384), (196.95, -95.257616)])  # lines 12-15
add_polygon(sketch3, [(186.15, -14.447824), (186.15, -6.344439), (186.95, -6.344439), (186.95, -14.447824)])  # lines 16-19
add_polygon(sketch3, [(16.693315, -3.35), (16.693315, -2.55), (183.306685, -2.55), (183.306685, -3.35)])  # lines 20-23
add_polygon(sketch3, [(13.05, -14.447824), (13.05, -6.344439), (13.85, -6.344439), (13.85, -14.447824)])  # lines 24-27
add_polygon(sketch3, [(3.05, -95.257616), (3.05, -24.742384), (3.85, -24.742384), (3.85, -95.257616)])  # lines 28-31
sketch3.addConstraint(Sketcher.Constraint("Vertical", 0))
sketch3.addConstraint(Sketcher.Constraint("Horizontal", 1))
sketch3.addConstraint(Sketcher.Constraint("Vertical", 2))
sketch3.addConstraint(Sketcher.Constraint("Horizontal", 3))
sketch3.addConstraint(Sketcher.Constraint("Vertical", 4))
sketch3.addConstraint(Sketcher.Constraint("Horizontal", 5))
sketch3.addConstraint(Sketcher.Constraint("Vertical", 6))
sketch3.addConstraint(Sketcher.Constraint("Horizontal", 7))
sketch3.addConstraint(Sketcher.Constraint("Vertical", 8))
sketch3.addConstraint(Sketcher.Constraint("Horizontal", 9))
sketch3.addConstraint(Sketcher.Constraint("Vertical", 10))
sketch3.addConstraint(Sketcher.Constraint("Horizontal", 11))
sketch3.addConstraint(Sketcher.Constraint("Vertical", 12))
sketch3.addConstraint(Sketcher.Constraint("Horizontal", 13))
sketch3.addConstraint(Sketcher.Constraint("Vertical", 14))
sketch3.addConstraint(Sketcher.Constraint("Horizontal", 15))
sketch3.addConstraint(Sketcher.Constraint("Vertical", 16))
sketch3.addConstraint(Sketcher.Constraint("Horizontal", 17))
sketch3.addConstraint(Sketcher.Constraint("Vertical", 18))
sketch3.addConstraint(Sketcher.Constraint("Horizontal", 19))
sketch3.addConstraint(Sketcher.Constraint("Vertical", 20))
sketch3.addConstraint(Sketcher.Constraint("Horizontal", 21))
sketch3.addConstraint(Sketcher.Constraint("Vertical", 22))
sketch3.addConstraint(Sketcher.Constraint("Horizontal", 23))
sketch3.addConstraint(Sketcher.Constraint("Vertical", 24))
sketch3.addConstraint(Sketcher.Constraint("Horizontal", 25))
sketch3.addConstraint(Sketcher.Constraint("Vertical", 26))
sketch3.addConstraint(Sketcher.Constraint("Horizontal", 27))
sketch3.addConstraint(Sketcher.Constraint("Vertical", 28))
sketch3.addConstraint(Sketcher.Constraint("Horizontal", 29))
sketch3.addConstraint(Sketcher.Constraint("Vertical", 30))
sketch3.addConstraint(Sketcher.Constraint("Horizontal", 31))
sketch3.addConstraint(Sketcher.Constraint("Horizontal", 1, 2, 4, 2))
sketch3.addConstraint(Sketcher.Constraint("Horizontal", 3, 2, 6, 2))
sketch3.addConstraint(Sketcher.Constraint("Horizontal", 17, 2, 24, 2))
sketch3.addConstraint(Sketcher.Constraint("Horizontal", 19, 2, 26, 2))
sketch3.addConstraint(Sketcher.Constraint("Horizontal", 13, 2, 28, 2))
sketch3.addConstraint(Sketcher.Constraint("Horizontal", 15, 2, 30, 2))
sketch3.addConstraint(Sketcher.Constraint("Vertical", 7, 2, 16, 2))
sketch3.addConstraint(Sketcher.Constraint("Vertical", 6, 2, 17, 2))
sketch3.addConstraint(Sketcher.Constraint("Vertical", 11, 2, 20, 2))
sketch3.addConstraint(Sketcher.Constraint("Vertical", 10, 2, 21, 2))
sketch3.addConstraint(Sketcher.Constraint("Vertical", 3, 2, 24, 2))
sketch3.addConstraint(Sketcher.Constraint("Vertical", 2, 2, 25, 2))
sketch3.addConstraint(Sketcher.Constraint("Equal", 3, 5))
sketch3.addConstraint(Sketcher.Constraint("Equal", 7, 13))
sketch3.addConstraint(Sketcher.Constraint("Equal", 27, 29))
sketch3.addConstraint(Sketcher.Constraint("Equal", 31, 8))
sketch3.addConstraint(Sketcher.Constraint("Equal", 6, 16))
sketch3.addConstraint(Sketcher.Constraint("Equal", 10, 20))
sketch3.addConstraint(Sketcher.Constraint("DistanceX", 1, 1, 1, 2, 0.8))
sketch3.addConstraint(Sketcher.Constraint("DistanceX", 4, 2, 12, 2, 10.0))
sketch3.addConstraint(Sketcher.Constraint("DistanceX", 28, 2, 27, 2, 10.0))
sketch3.addConstraint(Sketcher.Constraint("DistanceX", 1, 2, 4, 2, 172.3))
sketch3.addConstraint(Sketcher.Constraint("DistanceY", 8, 2, 20, 2, 114.1))
sketch3.addConstraint(Sketcher.Constraint("DistanceX", -1, 1, 0, 2, 13.05))
sketch3.addConstraint(Sketcher.Constraint("DistanceY", 8, 2, -1, 1, 116.65))
sketch3.addConstraint(Sketcher.Constraint("DistanceX", 9, 1, 9, 2, 166.613371))
sketch3.addConstraint(Sketcher.Constraint("DistanceY", 0, 1, 0, 2, 8.103386))
sketch3.addConstraint(Sketcher.Constraint("DistanceY", 12, 1, 12, 2, 70.515233))
sketch3.addConstraint(Sketcher.Constraint("DistanceY", 2, 2, -1, 1, 113.655561))
sketch3.addConstraint(Sketcher.Constraint("DistanceY", 16, 2, -1, 1, 6.344439))
sketch3.addConstraint(Sketcher.Constraint("DistanceY", 5, 2, 14, 2, 10.294559))
sketch3.addConstraint(Sketcher.Constraint("DistanceX", -1, 1, 8, 2, 16.693315))
sketch3.setExpression("Constraints[82]", "Params.sketch3_width")
pad3 = body.newObject("PartDesign::Pad", "Pad002")
pad3.Profile = sketch3
pad3.setExpression("Length", "Params.pad3_length")
pad3.Reversed = True

# Sketch on YZ plane
sketch4 = body.newObject("Sketcher::SketchObject", "Sketch003")
sketch4.AttachmentSupport = (doc.getObject("YZ_Plane"), [""])
sketch4.MapMode = "FlatFace"
sketch4.addGeometry(Part.LineSegment(App.Vector(3.35, -60.5, 0), App.Vector(3.35, -59.5, 0)), False)
sketch4.addGeometry(Part.ArcOfCircle(Part.Circle(App.Vector(4.35, -59.5, 0), App.Vector(0, 0, 1), 1), math.radians(0), math.radians(180)), False)
sketch4.addGeometry(Part.LineSegment(App.Vector(5.35, -59.5, 0), App.Vector(5.35, -60.5, 0)), False)
sketch4.addGeometry(Part.ArcOfCircle(Part.Circle(App.Vector(4.35, -60.5, 0), App.Vector(0, 0, 1), 1), math.radians(180), math.radians(360)), False)
sketch4.addConstraint(Sketcher.Constraint("Tangent", 0, 2, 1, 2))
sketch4.addConstraint(Sketcher.Constraint("Tangent", 1, 1, 2, 1))
sketch4.addConstraint(Sketcher.Constraint("Tangent", 2, 2, 3, 2))
sketch4.addConstraint(Sketcher.Constraint("Tangent", 3, 1, 0, 1))
sketch4.addConstraint(Sketcher.Constraint("Vertical", 0))
sketch4.addConstraint(Sketcher.Constraint("Vertical", 2))
sketch4.addConstraint(Sketcher.Constraint("Radius", 1, 1.0))
sketch4.addConstraint(Sketcher.Constraint("DistanceY", 0, 1, 0, 2, 1.0))
sketch4.addConstraint(Sketcher.Constraint("DistanceY", 1, 3, -1, 1, 59.5))
sketch4.addConstraint(Sketcher.Constraint("DistanceX", -1, 1, 1, 3, 4.35))
sketch4.setExpression("Constraints[6]", "Params.sketch4_radius")
sketch4.setExpression("Constraints[7]", "Params.sketch4_height")
pocket1 = body.newObject("PartDesign::Pocket", "Pocket")
pocket1.Profile = sketch4
pocket1.Type = "UpToFirst"
pocket1.Reversed = True

# Sketch on YZ plane
sketch5 = body.newObject("Sketcher::SketchObject", "Sketch004")
sketch5.AttachmentSupport = (doc.getObject("YZ_Plane"), [""])
sketch5.MapMode = "FlatFace"
sketch5.AttachmentOffset = App.Placement(App.Vector(0, 0, 200), App.Rotation())
sketch5.addGeometry(Part.LineSegment(App.Vector(5.35, -62, 0), App.Vector(5.35, -58, 0)), False)
sketch5.addGeometry(Part.ArcOfCircle(Part.Circle(App.Vector(4.35, -58, 0), App.Vector(0, 0, 1), 1), math.radians(0), math.radians(180)), False)
sketch5.addGeometry(Part.LineSegment(App.Vector(3.35, -58, 0), App.Vector(3.35, -62, 0)), False)
sketch5.addGeometry(Part.ArcOfCircle(Part.Circle(App.Vector(4.35, -62, 0), App.Vector(0, 0, 1), 1), math.radians(180), math.radians(360)), False)
sketch5.addConstraint(Sketcher.Constraint("Tangent", 0, 2, 1, 1))
sketch5.addConstraint(Sketcher.Constraint("Tangent", 1, 2, 2, 1))
sketch5.addConstraint(Sketcher.Constraint("Tangent", 2, 2, 3, 1))
sketch5.addConstraint(Sketcher.Constraint("Tangent", 3, 2, 0, 1))
sketch5.addConstraint(Sketcher.Constraint("Vertical", 0))
sketch5.addConstraint(Sketcher.Constraint("Vertical", 2))
sketch5.addConstraint(Sketcher.Constraint("Radius", 1, 1.0))
sketch5.addConstraint(Sketcher.Constraint("DistanceY", 0, 1, 0, 2, 4.0))
sketch5.addConstraint(Sketcher.Constraint("DistanceY", 1, 3, -1, 1, 58.0))
sketch5.addConstraint(Sketcher.Constraint("DistanceX", -1, 1, 1, 3, 4.35))
sketch5.setExpression("Constraints[6]", "Params.sketch5_radius")
sketch5.setExpression("Constraints[7]", "Params.sketch5_height")
pocket2 = body.newObject("PartDesign::Pocket", "Pocket001")
pocket2.Profile = sketch5
pocket2.Type = "UpToFirst"

doc.recompute()
